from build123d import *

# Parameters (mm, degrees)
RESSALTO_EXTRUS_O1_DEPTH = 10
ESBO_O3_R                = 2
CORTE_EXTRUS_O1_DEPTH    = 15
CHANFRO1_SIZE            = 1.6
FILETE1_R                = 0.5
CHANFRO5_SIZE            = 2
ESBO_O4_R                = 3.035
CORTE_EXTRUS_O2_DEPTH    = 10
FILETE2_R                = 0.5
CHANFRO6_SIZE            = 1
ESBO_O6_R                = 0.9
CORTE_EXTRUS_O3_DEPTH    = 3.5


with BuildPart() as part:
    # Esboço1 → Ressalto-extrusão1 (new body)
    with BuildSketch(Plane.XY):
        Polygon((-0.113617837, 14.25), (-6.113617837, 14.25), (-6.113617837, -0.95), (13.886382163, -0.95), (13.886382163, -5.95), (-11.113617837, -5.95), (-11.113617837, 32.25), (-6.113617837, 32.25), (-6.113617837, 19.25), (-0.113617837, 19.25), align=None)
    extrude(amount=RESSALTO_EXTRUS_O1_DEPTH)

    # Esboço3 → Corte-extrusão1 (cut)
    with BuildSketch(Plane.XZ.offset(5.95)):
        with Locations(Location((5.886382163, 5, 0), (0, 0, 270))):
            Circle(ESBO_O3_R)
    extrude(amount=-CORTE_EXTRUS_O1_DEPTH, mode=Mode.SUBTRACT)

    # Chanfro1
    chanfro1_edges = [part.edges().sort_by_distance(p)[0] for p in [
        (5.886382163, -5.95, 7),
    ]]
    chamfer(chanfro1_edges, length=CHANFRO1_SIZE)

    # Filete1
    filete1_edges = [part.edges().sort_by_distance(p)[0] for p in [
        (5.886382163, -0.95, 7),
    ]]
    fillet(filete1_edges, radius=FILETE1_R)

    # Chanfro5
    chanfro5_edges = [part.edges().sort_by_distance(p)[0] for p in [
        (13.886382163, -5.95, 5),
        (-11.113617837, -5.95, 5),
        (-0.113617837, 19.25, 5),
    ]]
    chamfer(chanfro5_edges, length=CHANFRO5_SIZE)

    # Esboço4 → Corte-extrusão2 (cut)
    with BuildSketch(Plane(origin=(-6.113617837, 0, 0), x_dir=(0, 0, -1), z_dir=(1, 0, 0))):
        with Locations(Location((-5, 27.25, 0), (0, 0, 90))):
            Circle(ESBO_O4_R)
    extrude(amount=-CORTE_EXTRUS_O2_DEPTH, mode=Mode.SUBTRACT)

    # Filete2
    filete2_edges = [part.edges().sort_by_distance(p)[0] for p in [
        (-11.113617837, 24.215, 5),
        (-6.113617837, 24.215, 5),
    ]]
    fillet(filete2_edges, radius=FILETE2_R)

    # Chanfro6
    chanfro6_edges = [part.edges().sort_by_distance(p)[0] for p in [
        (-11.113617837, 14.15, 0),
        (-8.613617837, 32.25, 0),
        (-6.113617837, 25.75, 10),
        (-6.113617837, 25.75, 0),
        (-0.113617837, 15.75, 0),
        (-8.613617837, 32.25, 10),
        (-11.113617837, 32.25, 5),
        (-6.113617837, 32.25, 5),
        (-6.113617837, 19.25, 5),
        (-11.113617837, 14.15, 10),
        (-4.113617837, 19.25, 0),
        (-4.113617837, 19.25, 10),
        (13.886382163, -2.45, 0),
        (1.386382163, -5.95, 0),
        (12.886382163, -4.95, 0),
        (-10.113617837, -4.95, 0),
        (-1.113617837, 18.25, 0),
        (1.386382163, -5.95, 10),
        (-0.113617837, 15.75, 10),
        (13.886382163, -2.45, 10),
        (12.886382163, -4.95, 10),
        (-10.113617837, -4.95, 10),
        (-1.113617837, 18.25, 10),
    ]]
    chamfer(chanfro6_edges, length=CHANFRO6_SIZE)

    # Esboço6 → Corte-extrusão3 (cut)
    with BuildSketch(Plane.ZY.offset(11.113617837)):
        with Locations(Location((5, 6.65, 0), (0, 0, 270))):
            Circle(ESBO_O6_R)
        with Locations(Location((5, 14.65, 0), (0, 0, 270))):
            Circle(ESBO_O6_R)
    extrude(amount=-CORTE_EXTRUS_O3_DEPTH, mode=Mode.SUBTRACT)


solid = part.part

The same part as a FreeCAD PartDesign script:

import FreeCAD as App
import Part
import Sketcher

V = App.Vector


def edges_at(feature, points):
    """Names of the edges that pass closest to the given points."""
    edges = feature.Shape.Edges
    near = lambda p: min(range(len(edges)), key=lambda i: edges[i].distToShape(Part.Vertex(*p))[0])
    return sorted({f"Edge{near(p) + 1}" for p in points})


def add_polygon(sketch, points):
    """Adds a closed chain of lines whose ends are joined by coincident constraints."""
    first, n = sketch.GeometryCount, len(points)
    for a, b in zip(points, points[1:] + points[:1]):
        sketch.addGeometry(Part.LineSegment(App.Vector(*a, 0), App.Vector(*b, 0)), False)
    for i in range(n):
        sketch.addConstraint(Sketcher.Constraint("Coincident", first + i, 2, first + (i + 1) % n, 1))

doc = App.newDocument("Part")
params = doc.addObject("Spreadsheet::Sheet", "Params")
for row, (alias, value) in enumerate([
    ("sketch1_width", "6 mm"),
    ("sketch1_width2", "5 mm"),
    ("sketch1_width3", "25 mm"),
    ("sketch1_height", "13 mm"),
    ("sketch1_height2", "38.2 mm"),
    ("pad1_length", "10 mm"),
    ("sketch2_diameter", "4 mm"),
    ("pocket1_length", "15 mm"),
    ("chamfer_size", "1.6 mm"),
    ("fillet_radius", "0.5 mm"),
    ("chamfer2_size", "2 mm"),
    ("sketch3_diameter", "6.07 mm"),
    ("pocket2_length", "10 mm"),
    ("fillet2_radius", "0.5 mm"),
    ("chamfer3_size", "1 mm"),
    ("sketch4_diameter", "1.8 mm"),
    ("pocket3_length", "3.5 mm"),
], start=1):
    params.set(f"A{row}", alias)
    params.set(f"B{row}", "=" + value)
    params.setAlias(f"B{row}", alias)

body = doc.addObject("PartDesign::Body", "Body")

# Sketch on XY plane
sketch1 = body.newObject("Sketcher::SketchObject", "Sketch")
sketch1.AttachmentSupport = (doc.getObject("XY_Plane"), [""])
sketch1.MapMode = "FlatFace"
add_polygon(sketch1, [(-6, 14), (0, 14), (0, 19), (-6, 19), (-6, 32), (-11, 32), (-11, -6), (14, -6), (14, -1), (-6, -1)])  # lines 0-9
sketch1.addConstraint(Sketcher.Constraint("Horizontal", 0))
sketch1.addConstraint(Sketcher.Constraint("Vertical", 1))
sketch1.addConstraint(Sketcher.Constraint("Horizontal", 2))
sketch1.addConstraint(Sketcher.Constraint("Vertical", 3))
sketch1.addConstraint(Sketcher.Constraint("Horizontal", 4))
sketch1.addConstraint(Sketcher.Constraint("Vertical", 5))
sketch1.addConstraint(Sketcher.Constraint("Horizontal", 6))
sketch1.addConstraint(Sketcher.Constraint("Vertical", 7))
sketch1.addConstraint(Sketcher.Constraint("Horizontal", 8))
sketch1.addConstraint(Sketcher.Constraint("Vertical", 9))
sketch1.addConstraint(Sketcher.Constraint("Vertical", 3, 2, 8, 2))
sketch1.addConstraint(Sketcher.Constraint("Equal", 4, 1))
sketch1.addConstraint(Sketcher.Constraint("Equal", 1, 7))
sketch1.addConstraint(Sketcher.Constraint("DistanceX", 0, 1, 0, 2, 6.0))
sketch1.addConstraint(Sketcher.Constraint("DistanceX", 4, 2, 4, 1, 5.0))
sketch1.addConstraint(Sketcher.Constraint("DistanceX", 6, 1, 6, 2, 25.0))
sketch1.addConstraint(Sketcher.Constraint("DistanceY", 3, 1, 3, 2, 13.0))
sketch1.addConstraint(Sketcher.Constraint("DistanceY", 5, 2, 5, 1, 38.2))
sketch1.addConstraint(Sketcher.Constraint("DistanceY", -1, 1, 0, 2, 14.25))
sketch1.addConstraint(Sketcher.Constraint("DistanceX", 0, 2, -1, 1, 0.113618))
sketch1.setExpression("Constraints[23]", "Params.sketch1_width")
sketch1.setExpression("Constraints[24]", "Params.sketch1_width2")
sketch1.setExpression("Constraints[25]", "Params.sketch1_width3")
sketch1.setExpression("Constraints[26]", "Params.sketch1_height")
sketch1.setExpression("Constraints[27]", "Params.sketch1_height2")
pad1 = body.newObject("PartDesign::Pad", "Pad")
pad1.Profile = sketch1
pad1.setExpression("Length", "Params.pad1_length")

# Sketch on XZ plane
sketch2 = body.newObject("Sketcher::SketchObject", "Sketch001")
sketch2.AttachmentSupport = (doc.getObject("XZ_Plane"), [""])
sketch2.MapMode = "FlatFace"
sketch2.AttachmentOffset = App.Placement(V(0, 0, 5.95), App.Rotation())
sketch2.addGeometry(Part.Circle(V(5.9, 5, 0), V(0, 0, 1), 2), False)
sketch2.addConstraint(Sketcher.Constraint("Diameter", 0, 4.0))
sketch2.addConstraint(Sketcher.Constraint("DistanceY", -1, 1, 0, 3, 5.0))
sketch2.addConstraint(Sketcher.Constraint("DistanceX", -1, 1, 0, 3, 5.886382))
sketch2.setExpression("Constraints[0]", "Params.sketch2_diameter")
pocket1 = body.newObject("PartDesign::Pocket", "Pocket")
pocket1.Profile = sketch2
pocket1.setExpression("Length", "Params.pocket1_length")
doc.recompute()

chamfer = body.newObject("PartDesign::Chamfer", "Chamfer")
chamfer.Base = (pocket1, edges_at(pocket1, [(5.886, -5.95, 7)]))
chamfer.setExpression("Size", "Params.chamfer_size")
doc.recompute()

fillet = body.newObject("PartDesign::Fillet", "Fillet")
fillet.Base = (chamfer, edges_at(chamfer, [(5.886, -0.95, 7)]))
fillet.setExpression("Radius", "Params.fillet_radius")
doc.recompute()

chamfer2 = body.newObject("PartDesign::Chamfer", "Chamfer001")
chamfer2.Base = (fillet, edges_at(fillet, [(13.886, -5.95, 5), (-11.114, -5.95, 5), (-0.114, 19.25, 5)]))
chamfer2.setExpression("Size", "Params.chamfer2_size")

# Sketch on YZ plane
sketch3 = body.newObject("Sketcher::SketchObject", "Sketch002")
sketch3.AttachmentSupport = (doc.getObject("YZ_Plane"), [""])
sketch3.MapMode = "FlatFace"
sketch3.AttachmentOffset = App.Placement(V(0, 0, -6.113618), App.Rotation())
sketch3.addGeometry(Part.Circle(V(27.2, 5, 0), V(0, 0, 1), 3), False)
sketch3.addConstraint(Sketcher.Constraint("Diameter", 0, 6.07))
sketch3.addConstraint(Sketcher.Constraint("DistanceY", -1, 1, 0, 3, 5.0))
sketch3.addConstraint(Sketcher.Constraint("DistanceX", -1, 1, 0, 3, 27.25))
sketch3.setExpression("Constraints[0]", "Params.sketch3_diameter")
pocket2 = body.newObject("PartDesign::Pocket", "Pocket001")
pocket2.Profile = sketch3
pocket2.setExpression("Length", "Params.pocket2_length")
doc.recompute()

fillet2 = body.newObject("PartDesign::Fillet", "Fillet001")
fillet2.Base = (pocket2, edges_at(pocket2, [(-11.114, 24.215, 5), (-6.114, 24.215, 5)]))
fillet2.setExpression("Radius", "Params.fillet2_radius")
doc.recompute()

chamfer3 = body.newObject("PartDesign::Chamfer", "Chamfer002")
chamfer3.Base = (fillet2, edges_at(fillet2, [
    (-11.114, 14.15, 0),
    (-8.614, 32.25, 0),
    (-6.114, 25.75, 10),
    (-6.114, 25.75, 0),
    (-0.114, 15.75, 0),
    (-8.614, 32.25, 10),
    (-11.114, 32.25, 5),
    (-6.114, 32.25, 5),
    (-6.114, 19.25, 5),
    (-11.114, 14.15, 10),
    (-4.114, 19.25, 0),
    (-4.114, 19.25, 10),
    (13.886, -2.45, 0),
    (1.386, -5.95, 0),
    (12.886, -4.95, 0),
    (-10.114, -4.95, 0),
    (-1.114, 18.25, 0),
    (1.386, -5.95, 10),
    (-0.114, 15.75, 10),
    (13.886, -2.45, 10),
    (12.886, -4.95, 10),
    (-10.114, -4.95, 10),
    (-1.114, 18.25, 10),
]))
chamfer3.setExpression("Size", "Params.chamfer3_size")

# Sketch on YZ plane
sketch4 = body.newObject("Sketcher::SketchObject", "Sketch003")
sketch4.AttachmentSupport = (doc.getObject("YZ_Plane"), [""])
sketch4.MapMode = "FlatFace"
sketch4.AttachmentOffset = App.Placement(V(0, 0, -11.113618), App.Rotation())
sketch4.addGeometry(Part.Circle(V(6.7, 5, 0), V(0, 0, 1), 0.9), False)
sketch4.addGeometry(Part.Circle(V(14.7, 5, 0), V(0, 0, 1), 0.9), False)
sketch4.addConstraint(Sketcher.Constraint("Equal", 0, 1))
sketch4.addConstraint(Sketcher.Constraint("Horizontal", 0, 3, 1, 3))
sketch4.addConstraint(Sketcher.Constraint("Diameter", 0, 1.8))
sketch4.addConstraint(Sketcher.Constraint("DistanceY", -1, 1, 0, 3, 5.0))
sketch4.addConstraint(Sketcher.Constraint("DistanceX", 0, 3, 1, 3, 8.0))
sketch4.addConstraint(Sketcher.Constraint("DistanceX", -1, 1, 0, 3, 6.65))
sketch4.setExpression("Constraints[2]", "Params.sketch4_diameter")
pocket3 = body.newObject("PartDesign::Pocket", "Pocket002")
pocket3.Profile = sketch4
pocket3.setExpression("Length", "Params.pocket3_length")
pocket3.Reversed = True

doc.recompute()
